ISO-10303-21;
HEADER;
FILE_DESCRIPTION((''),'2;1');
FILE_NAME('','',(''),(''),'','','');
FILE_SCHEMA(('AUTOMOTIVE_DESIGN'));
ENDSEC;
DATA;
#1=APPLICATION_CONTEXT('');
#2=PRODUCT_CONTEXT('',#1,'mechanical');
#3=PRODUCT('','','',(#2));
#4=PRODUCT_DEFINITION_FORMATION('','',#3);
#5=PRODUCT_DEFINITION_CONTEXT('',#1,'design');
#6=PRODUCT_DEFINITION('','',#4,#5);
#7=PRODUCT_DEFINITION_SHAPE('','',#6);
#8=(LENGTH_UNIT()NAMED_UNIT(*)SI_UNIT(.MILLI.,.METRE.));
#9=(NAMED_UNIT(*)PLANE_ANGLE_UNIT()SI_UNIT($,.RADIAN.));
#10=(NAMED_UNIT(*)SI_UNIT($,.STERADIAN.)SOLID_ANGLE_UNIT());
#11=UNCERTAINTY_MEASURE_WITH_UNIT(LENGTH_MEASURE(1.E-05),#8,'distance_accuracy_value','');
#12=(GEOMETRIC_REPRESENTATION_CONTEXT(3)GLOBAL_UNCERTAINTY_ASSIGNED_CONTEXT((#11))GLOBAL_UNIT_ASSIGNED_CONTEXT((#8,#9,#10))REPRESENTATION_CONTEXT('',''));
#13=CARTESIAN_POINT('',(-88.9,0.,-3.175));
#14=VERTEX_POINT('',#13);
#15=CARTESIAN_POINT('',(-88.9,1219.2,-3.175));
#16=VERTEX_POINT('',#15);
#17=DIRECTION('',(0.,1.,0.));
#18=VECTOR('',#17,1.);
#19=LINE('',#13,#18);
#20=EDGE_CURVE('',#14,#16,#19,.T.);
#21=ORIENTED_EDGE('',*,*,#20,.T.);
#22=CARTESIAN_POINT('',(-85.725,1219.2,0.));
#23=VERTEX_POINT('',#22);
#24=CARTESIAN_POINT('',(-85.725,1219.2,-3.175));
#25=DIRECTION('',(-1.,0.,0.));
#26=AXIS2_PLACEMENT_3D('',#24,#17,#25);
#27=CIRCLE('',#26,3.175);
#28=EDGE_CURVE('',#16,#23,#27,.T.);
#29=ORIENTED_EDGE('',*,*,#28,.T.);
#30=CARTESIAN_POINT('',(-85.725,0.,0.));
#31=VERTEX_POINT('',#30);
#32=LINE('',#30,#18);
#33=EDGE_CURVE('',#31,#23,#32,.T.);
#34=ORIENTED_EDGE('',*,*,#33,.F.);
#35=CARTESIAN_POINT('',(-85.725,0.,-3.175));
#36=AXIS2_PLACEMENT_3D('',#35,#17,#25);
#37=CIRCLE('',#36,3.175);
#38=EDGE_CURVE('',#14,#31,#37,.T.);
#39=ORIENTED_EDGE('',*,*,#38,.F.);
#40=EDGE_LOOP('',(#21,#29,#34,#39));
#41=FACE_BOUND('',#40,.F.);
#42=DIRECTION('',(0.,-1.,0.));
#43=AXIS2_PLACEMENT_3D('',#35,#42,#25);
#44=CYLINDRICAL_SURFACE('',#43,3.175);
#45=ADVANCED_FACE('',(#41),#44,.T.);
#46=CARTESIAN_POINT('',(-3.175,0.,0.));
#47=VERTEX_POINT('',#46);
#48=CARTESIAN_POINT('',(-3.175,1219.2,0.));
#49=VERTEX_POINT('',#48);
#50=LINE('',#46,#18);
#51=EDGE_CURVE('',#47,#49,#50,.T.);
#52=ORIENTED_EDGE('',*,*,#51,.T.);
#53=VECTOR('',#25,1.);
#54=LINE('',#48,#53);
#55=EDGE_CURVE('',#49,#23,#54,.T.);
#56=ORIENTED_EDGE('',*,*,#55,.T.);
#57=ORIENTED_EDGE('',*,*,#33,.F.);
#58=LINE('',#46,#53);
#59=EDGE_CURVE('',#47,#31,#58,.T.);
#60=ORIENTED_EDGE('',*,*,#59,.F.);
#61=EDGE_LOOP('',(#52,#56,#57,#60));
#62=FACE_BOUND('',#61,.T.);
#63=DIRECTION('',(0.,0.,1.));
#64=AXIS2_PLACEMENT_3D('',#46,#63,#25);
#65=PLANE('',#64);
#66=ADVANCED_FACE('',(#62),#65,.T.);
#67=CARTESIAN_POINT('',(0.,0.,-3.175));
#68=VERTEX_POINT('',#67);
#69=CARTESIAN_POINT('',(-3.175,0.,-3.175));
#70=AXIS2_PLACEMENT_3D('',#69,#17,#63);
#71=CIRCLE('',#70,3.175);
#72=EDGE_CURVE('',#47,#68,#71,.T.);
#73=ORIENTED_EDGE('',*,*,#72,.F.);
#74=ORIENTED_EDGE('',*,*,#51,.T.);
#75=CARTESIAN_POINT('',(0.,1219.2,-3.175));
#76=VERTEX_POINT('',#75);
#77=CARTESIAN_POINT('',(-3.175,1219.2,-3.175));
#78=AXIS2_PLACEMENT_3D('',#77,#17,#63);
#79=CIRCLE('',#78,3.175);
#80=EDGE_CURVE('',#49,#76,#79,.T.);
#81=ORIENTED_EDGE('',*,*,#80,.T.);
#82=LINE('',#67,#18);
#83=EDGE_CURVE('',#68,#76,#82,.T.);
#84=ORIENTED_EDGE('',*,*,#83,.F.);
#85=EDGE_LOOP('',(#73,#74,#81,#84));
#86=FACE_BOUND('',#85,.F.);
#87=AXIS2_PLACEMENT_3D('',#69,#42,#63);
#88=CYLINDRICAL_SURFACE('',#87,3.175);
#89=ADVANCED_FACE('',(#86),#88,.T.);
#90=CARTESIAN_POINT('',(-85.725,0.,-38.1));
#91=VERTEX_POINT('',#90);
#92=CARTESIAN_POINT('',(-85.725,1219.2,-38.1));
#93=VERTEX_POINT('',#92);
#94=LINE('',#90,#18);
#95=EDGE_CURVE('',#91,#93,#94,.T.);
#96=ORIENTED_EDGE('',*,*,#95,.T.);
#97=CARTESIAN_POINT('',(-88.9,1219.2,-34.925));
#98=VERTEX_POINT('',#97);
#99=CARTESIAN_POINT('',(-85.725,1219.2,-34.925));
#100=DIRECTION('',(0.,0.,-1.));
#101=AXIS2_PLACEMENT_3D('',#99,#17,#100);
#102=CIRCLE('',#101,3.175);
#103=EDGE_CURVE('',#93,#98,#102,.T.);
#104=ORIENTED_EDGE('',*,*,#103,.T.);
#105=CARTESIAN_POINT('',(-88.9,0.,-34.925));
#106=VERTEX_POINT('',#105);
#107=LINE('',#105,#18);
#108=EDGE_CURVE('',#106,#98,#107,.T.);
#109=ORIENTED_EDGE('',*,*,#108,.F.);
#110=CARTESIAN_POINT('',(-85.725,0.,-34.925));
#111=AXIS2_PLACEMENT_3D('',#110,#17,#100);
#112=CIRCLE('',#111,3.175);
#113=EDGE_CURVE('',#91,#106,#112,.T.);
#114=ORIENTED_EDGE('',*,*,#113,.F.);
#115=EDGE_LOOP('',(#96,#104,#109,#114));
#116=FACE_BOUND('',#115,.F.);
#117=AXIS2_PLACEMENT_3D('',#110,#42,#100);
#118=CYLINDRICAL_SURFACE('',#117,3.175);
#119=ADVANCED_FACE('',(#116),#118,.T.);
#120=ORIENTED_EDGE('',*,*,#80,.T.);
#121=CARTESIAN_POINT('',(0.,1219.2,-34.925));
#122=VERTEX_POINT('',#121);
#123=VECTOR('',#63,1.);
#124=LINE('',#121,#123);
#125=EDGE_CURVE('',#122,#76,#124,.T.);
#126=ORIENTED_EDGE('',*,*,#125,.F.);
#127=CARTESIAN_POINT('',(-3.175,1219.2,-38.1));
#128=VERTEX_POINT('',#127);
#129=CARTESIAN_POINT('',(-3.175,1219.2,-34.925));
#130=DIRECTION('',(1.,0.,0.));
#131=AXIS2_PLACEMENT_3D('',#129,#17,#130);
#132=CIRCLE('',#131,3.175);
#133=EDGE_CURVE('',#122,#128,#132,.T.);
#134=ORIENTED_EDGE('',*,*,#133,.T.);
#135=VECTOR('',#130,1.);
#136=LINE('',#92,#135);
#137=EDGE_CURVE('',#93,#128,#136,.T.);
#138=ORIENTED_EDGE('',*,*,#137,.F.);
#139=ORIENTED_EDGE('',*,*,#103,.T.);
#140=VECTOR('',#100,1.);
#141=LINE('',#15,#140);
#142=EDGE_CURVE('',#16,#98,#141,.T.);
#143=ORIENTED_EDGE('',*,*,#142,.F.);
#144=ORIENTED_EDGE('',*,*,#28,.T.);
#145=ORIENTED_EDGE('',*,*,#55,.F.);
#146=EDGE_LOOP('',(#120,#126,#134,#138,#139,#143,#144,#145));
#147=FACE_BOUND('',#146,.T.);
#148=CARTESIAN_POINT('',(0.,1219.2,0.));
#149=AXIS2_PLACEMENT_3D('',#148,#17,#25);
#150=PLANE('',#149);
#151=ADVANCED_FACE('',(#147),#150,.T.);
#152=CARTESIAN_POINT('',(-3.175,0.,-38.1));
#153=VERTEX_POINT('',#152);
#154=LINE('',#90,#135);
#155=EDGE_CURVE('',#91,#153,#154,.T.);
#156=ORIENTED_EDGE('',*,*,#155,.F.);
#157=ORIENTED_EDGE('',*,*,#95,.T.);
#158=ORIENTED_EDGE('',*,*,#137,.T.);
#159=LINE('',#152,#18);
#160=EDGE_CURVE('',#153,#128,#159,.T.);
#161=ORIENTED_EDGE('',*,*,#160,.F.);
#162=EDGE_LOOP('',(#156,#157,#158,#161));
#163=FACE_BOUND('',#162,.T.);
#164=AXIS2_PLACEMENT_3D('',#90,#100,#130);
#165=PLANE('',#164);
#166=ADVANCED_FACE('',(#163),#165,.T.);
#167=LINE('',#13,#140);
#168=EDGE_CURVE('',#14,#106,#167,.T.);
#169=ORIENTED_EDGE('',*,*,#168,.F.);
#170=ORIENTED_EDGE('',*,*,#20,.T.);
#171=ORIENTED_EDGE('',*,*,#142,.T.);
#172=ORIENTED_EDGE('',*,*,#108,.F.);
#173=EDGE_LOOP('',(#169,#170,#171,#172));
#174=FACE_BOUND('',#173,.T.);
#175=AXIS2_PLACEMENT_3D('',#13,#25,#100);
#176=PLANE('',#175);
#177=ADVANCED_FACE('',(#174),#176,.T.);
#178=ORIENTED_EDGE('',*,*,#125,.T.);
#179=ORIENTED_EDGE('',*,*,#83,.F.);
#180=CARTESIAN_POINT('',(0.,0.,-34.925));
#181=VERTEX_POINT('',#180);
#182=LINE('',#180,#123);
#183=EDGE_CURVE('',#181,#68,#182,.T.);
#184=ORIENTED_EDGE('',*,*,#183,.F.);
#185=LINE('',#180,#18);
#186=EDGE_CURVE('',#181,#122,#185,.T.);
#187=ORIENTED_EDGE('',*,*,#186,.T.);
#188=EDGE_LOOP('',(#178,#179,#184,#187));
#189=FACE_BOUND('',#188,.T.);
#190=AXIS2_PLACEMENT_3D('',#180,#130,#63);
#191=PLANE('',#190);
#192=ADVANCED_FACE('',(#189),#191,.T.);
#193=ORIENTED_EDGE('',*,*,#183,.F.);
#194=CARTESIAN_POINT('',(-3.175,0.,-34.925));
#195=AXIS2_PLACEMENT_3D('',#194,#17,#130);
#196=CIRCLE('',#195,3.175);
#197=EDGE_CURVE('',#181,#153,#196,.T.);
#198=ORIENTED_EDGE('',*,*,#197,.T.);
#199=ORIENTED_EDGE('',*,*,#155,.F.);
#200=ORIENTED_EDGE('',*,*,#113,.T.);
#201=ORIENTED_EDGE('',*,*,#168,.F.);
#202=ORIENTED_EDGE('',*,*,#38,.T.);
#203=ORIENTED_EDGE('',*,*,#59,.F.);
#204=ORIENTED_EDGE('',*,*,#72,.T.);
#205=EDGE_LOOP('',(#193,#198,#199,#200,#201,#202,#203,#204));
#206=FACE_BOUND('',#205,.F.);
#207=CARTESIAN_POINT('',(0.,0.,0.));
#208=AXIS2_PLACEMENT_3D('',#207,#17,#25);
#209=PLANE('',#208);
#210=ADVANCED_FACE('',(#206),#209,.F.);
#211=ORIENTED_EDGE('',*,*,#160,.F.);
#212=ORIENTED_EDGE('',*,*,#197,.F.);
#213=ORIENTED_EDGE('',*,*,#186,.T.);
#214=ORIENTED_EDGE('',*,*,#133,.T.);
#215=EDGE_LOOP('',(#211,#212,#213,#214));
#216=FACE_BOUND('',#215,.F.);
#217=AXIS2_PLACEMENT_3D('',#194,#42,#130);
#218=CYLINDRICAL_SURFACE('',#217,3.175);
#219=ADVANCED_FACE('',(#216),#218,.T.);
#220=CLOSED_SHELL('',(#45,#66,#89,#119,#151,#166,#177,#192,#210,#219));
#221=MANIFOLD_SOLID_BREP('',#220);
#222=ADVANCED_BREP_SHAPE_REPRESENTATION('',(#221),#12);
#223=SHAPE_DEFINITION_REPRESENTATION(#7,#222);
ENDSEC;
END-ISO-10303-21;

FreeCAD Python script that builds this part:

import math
import FreeCAD as App
import Part
import Sketcher
Q = App.Units.Quantity

doc = App.newDocument("Part")
body = doc.addObject("PartDesign::Body", "Body")

# Sketch on XZ plane
sketch1 = body.newObject("Sketcher::SketchObject", "Sketch")
sketch1.AttachmentSupport = (doc.getObject("XZ_Plane"), [""])
sketch1.MapMode = "FlatFace"
sketch1.addGeometry([
    Part.LineSegment(App.Vector(-85.725, 0, 0), App.Vector(-3.175, 0, 0)),  # 0
    Part.ArcOfCircle(Part.Circle(App.Vector(-3.175, -3.175, 0), App.Vector(0, 0, 1), 3.175), math.radians(0), math.radians(90)),  # 1
    Part.LineSegment(App.Vector(0, -3.175, 0), App.Vector(0, -34.925, 0)),  # 2
    Part.ArcOfCircle(Part.Circle(App.Vector(-3.175, -34.925, 0), App.Vector(0, 0, 1), 3.175), math.radians(-90), math.radians(0)),  # 3
    Part.LineSegment(App.Vector(-3.175, -38.1, 0), App.Vector(-85.725, -38.1, 0)),  # 4
    Part.ArcOfCircle(Part.Circle(App.Vector(-85.725, -34.925, 0), App.Vector(0, 0, 1), 3.175), math.radians(180), math.radians(270)),  # 5
    Part.LineSegment(App.Vector(-88.9, -34.925, 0), App.Vector(-88.9, -3.175, 0)),  # 6
    Part.ArcOfCircle(Part.Circle(App.Vector(-85.725, -3.175, 0), App.Vector(0, 0, 1), 3.175), math.radians(90), math.radians(180)),  # 7
], False)
sketch1.addConstraint([
    Sketcher.Constraint("Tangent", 0, 2, 1, 2),
    Sketcher.Constraint("Tangent", 1, 1, 2, 1),
    Sketcher.Constraint("Tangent", 2, 2, 3, 2),
    Sketcher.Constraint("Tangent", 3, 1, 4, 1),
    Sketcher.Constraint("Tangent", 4, 2, 5, 2),
    Sketcher.Constraint("Tangent", 5, 1, 6, 1),
    Sketcher.Constraint("Tangent", 6, 2, 7, 2),
    Sketcher.Constraint("Tangent", 7, 1, 0, 1),
    Sketcher.Constraint("Horizontal", 0),
    Sketcher.Constraint("Vertical", 2),
    Sketcher.Constraint("Horizontal", 4),
    Sketcher.Constraint("Vertical", 6),
    Sketcher.Constraint("Equal", 1, 3),
    Sketcher.Constraint("Equal", 3, 5),
    Sketcher.Constraint("Equal", 5, 7),
    Sketcher.Constraint("PointOnObject", 0, 2, -1),
    Sketcher.Constraint("PointOnObject", 1, 1, -2),
    Sketcher.Constraint("Radius", 1, Q("0.125 in")),
    Sketcher.Constraint("DistanceY", 3, 1, -1, 1, Q("1.5 in")),
    Sketcher.Constraint("DistanceX", 5, 1, -1, 1, Q("3.5 in")),
])
pad1 = body.newObject("PartDesign::Pad", "Pad")
pad1.Profile = sketch1
pad1.Length = Q("48 in")
pad1.Reversed = True

doc.recompute()
